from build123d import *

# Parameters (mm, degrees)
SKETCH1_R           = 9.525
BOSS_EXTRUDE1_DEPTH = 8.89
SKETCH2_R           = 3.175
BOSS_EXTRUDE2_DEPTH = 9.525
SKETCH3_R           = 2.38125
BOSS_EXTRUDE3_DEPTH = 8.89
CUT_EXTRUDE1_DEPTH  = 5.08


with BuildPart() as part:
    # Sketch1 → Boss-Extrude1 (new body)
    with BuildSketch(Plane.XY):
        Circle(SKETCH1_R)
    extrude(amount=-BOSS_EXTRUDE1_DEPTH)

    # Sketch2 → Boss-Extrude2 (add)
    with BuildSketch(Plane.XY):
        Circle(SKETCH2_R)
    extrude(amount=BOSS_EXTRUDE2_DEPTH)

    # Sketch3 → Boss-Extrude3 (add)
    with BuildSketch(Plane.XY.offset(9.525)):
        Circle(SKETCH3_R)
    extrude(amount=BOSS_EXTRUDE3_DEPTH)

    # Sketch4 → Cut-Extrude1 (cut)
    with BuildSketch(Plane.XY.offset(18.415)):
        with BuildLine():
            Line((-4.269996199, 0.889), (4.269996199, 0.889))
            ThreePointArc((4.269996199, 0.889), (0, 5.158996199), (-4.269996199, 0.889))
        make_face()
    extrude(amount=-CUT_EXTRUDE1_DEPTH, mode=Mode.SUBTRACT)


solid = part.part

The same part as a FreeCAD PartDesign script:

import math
import FreeCAD as App
import Part
import Sketcher
from FreeCAD import Vector
Q = App.Units.Quantity

doc = App.newDocument("Part")
body = doc.addObject("PartDesign::Body", "Body")

sketch1 = doc.addObject("Sketcher::SketchObject", "Sketch")
body.addObject(sketch1)
sketch1.AttachmentSupport = (doc.XY_Plane, [""])
sketch1.MapMode = "FlatFace"
sketch1.addGeometry(Part.Circle(Vector(0, 0, 0), Vector(0, 0, 1), 10), False)
sketch1.addConstraint(Sketcher.Constraint("Coincident", 0, 3, -1, 1))
sketch1.addConstraint(Sketcher.Constraint("Diameter", 0, Q("0.75 in")))
pad1 = doc.addObject("PartDesign::Pad", "Pad")
body.addObject(pad1)
pad1.Profile = sketch1
pad1.Length = Q("0.35 in")
pad1.Reversed = True

sketch2 = doc.addObject("Sketcher::SketchObject", "Sketch001")
body.addObject(sketch2)
sketch2.AttachmentSupport = (doc.XY_Plane, [""])
sketch2.MapMode = "FlatFace"
sketch2.addGeometry(Part.Circle(Vector(0, 0, 0), Vector(0, 0, 1), 3.2), False)
sketch2.addConstraint(Sketcher.Constraint("Coincident", 0, 3, -1, 1))
sketch2.addConstraint(Sketcher.Constraint("Diameter", 0, Q("0.25 in")))
pad2 = doc.addObject("PartDesign::Pad", "Pad001")
body.addObject(pad2)
pad2.Profile = sketch2
pad2.Length = Q("0.375 in")

sketch3 = doc.addObject("Sketcher::SketchObject", "Sketch002")
body.addObject(sketch3)
sketch3.AttachmentSupport = (doc.XY_Plane, [""])
sketch3.MapMode = "FlatFace"
sketch3.AttachmentOffset = App.Placement(Vector(0, 0, 0.375 * 25.4), App.Rotation())
sketch3.addGeometry(Part.Circle(Vector(0, 0, 0), Vector(0, 0, 1), 2.4), False)
sketch3.addConstraint(Sketcher.Constraint("Coincident", 0, 3, -1, 1))
sketch3.addConstraint(Sketcher.Constraint("Diameter", 0, Q("0.1875 in")))
pad3 = doc.addObject("PartDesign::Pad", "Pad002")
body.addObject(pad3)
pad3.Profile = sketch3
pad3.Length = Q("0.35 in")

sketch4 = doc.addObject("Sketcher::SketchObject", "Sketch003")
body.addObject(sketch4)
sketch4.AttachmentSupport = (doc.XY_Plane, [""])
sketch4.MapMode = "FlatFace"
sketch4.AttachmentOffset = App.Placement(Vector(0, 0, 0.725 * 25.4), App.Rotation())
sketch4.addGeometry(Part.LineSegment(Vector(-4.3, 0.9, 0), Vector(4.3, 0.9, 0)), False)
sketch4.addGeometry(Part.ArcOfCircle(Part.Circle(Vector(0, 0.9, 0), Vector(0, 0, 1), 4.3), math.radians(0), math.radians(180)), False)
sketch4.addConstraint(Sketcher.Constraint("Coincident", 0, 1, 1, 2))
sketch4.addConstraint(Sketcher.Constraint("Coincident", 1, 1, 0, 2))
sketch4.addConstraint(Sketcher.Constraint("Horizontal", 0))
sketch4.addConstraint(Sketcher.Constraint("PointOnObject", 1, 3, -2))
sketch4.addConstraint(Sketcher.Constraint("Horizontal", 1, 3, 0, 1))
sketch4.addConstraint(Sketcher.Constraint("DistanceY", -1, 1, 1, 3, Q("0.035 in")))
sketch4.addConstraint(Sketcher.Constraint("Radius", 1, Q("4.269996 mm")))
pocket1 = doc.addObject("PartDesign::Pocket", "Pocket")
body.addObject(pocket1)
pocket1.Profile = sketch4
pocket1.Length = Q("0.2 in")

doc.recompute()
